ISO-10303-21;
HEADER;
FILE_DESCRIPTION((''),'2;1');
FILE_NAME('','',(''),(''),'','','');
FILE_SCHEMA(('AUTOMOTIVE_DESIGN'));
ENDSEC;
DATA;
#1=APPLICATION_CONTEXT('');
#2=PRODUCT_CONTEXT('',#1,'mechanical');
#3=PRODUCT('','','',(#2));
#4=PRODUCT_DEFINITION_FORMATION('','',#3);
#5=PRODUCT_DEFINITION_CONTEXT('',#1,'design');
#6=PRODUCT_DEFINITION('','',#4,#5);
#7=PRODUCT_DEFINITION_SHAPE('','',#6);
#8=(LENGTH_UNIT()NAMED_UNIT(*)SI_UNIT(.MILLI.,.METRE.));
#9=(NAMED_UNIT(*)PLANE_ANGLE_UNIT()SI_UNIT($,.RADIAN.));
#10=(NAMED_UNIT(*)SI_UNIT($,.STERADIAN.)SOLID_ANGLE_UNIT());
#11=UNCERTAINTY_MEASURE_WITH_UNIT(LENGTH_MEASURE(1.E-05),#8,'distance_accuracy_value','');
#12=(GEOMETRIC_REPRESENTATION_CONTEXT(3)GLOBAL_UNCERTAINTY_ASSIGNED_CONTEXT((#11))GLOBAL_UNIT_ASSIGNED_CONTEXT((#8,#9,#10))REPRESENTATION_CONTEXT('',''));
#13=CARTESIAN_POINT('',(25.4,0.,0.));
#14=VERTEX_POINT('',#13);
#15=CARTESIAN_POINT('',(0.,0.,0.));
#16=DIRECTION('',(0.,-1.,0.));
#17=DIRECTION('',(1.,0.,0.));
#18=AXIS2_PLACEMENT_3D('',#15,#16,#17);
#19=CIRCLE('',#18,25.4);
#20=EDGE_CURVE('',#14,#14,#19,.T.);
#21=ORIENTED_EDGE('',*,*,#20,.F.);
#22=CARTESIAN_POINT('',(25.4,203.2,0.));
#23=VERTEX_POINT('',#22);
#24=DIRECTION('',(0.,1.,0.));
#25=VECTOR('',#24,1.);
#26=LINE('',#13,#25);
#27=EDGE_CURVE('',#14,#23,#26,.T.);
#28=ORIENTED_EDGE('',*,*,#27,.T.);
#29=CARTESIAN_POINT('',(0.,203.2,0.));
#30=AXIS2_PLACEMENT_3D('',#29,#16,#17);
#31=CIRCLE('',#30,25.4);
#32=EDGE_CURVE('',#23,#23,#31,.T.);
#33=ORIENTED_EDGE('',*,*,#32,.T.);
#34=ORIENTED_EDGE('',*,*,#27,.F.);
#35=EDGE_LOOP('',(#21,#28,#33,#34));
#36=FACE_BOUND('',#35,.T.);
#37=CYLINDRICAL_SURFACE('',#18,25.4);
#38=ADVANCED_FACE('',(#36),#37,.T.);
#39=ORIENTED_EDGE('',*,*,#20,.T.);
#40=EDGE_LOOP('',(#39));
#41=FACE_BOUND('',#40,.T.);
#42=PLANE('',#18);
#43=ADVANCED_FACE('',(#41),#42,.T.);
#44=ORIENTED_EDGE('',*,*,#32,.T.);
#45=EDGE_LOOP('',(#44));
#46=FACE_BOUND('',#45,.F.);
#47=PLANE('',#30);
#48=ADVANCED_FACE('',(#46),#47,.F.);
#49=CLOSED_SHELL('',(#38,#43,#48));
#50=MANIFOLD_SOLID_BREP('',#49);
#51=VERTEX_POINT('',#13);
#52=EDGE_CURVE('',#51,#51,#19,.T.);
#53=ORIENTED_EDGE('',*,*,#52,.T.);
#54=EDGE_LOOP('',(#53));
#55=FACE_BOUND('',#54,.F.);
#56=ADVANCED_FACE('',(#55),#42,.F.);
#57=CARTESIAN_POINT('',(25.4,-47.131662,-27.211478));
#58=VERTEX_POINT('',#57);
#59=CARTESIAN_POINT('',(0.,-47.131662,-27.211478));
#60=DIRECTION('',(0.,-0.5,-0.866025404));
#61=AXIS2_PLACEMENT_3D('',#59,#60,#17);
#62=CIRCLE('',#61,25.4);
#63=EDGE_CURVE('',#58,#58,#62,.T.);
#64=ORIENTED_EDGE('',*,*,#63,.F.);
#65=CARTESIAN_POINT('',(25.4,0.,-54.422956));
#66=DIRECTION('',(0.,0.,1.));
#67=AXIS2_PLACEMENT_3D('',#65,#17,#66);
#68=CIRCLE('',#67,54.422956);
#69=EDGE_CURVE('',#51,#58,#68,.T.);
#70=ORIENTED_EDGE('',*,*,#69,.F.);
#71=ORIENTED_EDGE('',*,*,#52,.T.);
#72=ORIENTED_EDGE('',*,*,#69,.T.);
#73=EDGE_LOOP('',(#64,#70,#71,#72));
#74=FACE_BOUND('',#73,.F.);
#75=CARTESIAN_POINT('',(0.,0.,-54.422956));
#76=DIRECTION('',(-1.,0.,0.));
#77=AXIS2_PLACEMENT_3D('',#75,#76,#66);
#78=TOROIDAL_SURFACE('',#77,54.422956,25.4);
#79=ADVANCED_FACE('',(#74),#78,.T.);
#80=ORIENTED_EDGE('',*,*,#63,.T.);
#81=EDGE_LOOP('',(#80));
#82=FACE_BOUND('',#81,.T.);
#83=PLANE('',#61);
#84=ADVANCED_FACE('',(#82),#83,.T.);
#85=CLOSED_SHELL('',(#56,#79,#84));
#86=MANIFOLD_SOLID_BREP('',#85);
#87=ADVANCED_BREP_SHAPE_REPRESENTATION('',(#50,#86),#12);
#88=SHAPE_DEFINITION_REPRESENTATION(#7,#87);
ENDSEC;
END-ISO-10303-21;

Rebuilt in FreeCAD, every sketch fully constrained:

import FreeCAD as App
import Part
import Sketcher

V = App.Vector
Q = App.Units.Quantity

doc = App.newDocument("Part")
body = doc.addObject("PartDesign::Body", "Body")

sketch1 = doc.addObject("Sketcher::SketchObject", "Sketch")
body.addObject(sketch1)
sketch1.AttachmentSupport = (doc.XZ_Plane, [""])
sketch1.MapMode = "FlatFace"
sketch1.addGeometry(Part.Circle(V(0, 0, 0), V(0, 0, 1), 25), False)
sketch1.addGeometry(Part.LineSegment(V(0, -54, 0), V(10, -54, 0)), True)
sketch1.addConstraint([
    Sketcher.Constraint("Horizontal", 1),
    Sketcher.Constraint("Coincident", 0, 3, -1, 1),
    Sketcher.Constraint("PointOnObject", 1, 1, -2),
    Sketcher.Constraint("Diameter", 0, Q("2 in")),
    Sketcher.Constraint("DistanceX", 1, 1, 1, 2, 10.0),
    Sketcher.Constraint("DistanceY", 1, 1, -1, 1, 54.422956),
])
revolution = doc.addObject("PartDesign::Revolution", "Revolution")
body.addObject(revolution)
revolution.Profile = sketch1
revolution.ReferenceAxis = (sketch1, ["Axis0"])
revolution.Angle = 60
body2 = doc.addObject("PartDesign::Body", "Body001")

sketch2 = doc.addObject("Sketcher::SketchObject", "Sketch001")
body2.addObject(sketch2)
sketch2.AttachmentSupport = (doc.getObject("XZ_Plane001"), [""])
sketch2.MapMode = "FlatFace"
sketch2.addGeometry(Part.Circle(V(0, 0, 0), V(0, 0, 1), 25), False)
sketch2.addConstraint([
    Sketcher.Constraint("Coincident", 0, 3, -1, 1),
    Sketcher.Constraint("Diameter", 0, Q("2 in")),
])
pad1 = doc.addObject("PartDesign::Pad", "Pad")
body2.addObject(pad1)
pad1.Profile = sketch2
pad1.Length = Q("8 in")
pad1.Reversed = True

doc.recompute()
